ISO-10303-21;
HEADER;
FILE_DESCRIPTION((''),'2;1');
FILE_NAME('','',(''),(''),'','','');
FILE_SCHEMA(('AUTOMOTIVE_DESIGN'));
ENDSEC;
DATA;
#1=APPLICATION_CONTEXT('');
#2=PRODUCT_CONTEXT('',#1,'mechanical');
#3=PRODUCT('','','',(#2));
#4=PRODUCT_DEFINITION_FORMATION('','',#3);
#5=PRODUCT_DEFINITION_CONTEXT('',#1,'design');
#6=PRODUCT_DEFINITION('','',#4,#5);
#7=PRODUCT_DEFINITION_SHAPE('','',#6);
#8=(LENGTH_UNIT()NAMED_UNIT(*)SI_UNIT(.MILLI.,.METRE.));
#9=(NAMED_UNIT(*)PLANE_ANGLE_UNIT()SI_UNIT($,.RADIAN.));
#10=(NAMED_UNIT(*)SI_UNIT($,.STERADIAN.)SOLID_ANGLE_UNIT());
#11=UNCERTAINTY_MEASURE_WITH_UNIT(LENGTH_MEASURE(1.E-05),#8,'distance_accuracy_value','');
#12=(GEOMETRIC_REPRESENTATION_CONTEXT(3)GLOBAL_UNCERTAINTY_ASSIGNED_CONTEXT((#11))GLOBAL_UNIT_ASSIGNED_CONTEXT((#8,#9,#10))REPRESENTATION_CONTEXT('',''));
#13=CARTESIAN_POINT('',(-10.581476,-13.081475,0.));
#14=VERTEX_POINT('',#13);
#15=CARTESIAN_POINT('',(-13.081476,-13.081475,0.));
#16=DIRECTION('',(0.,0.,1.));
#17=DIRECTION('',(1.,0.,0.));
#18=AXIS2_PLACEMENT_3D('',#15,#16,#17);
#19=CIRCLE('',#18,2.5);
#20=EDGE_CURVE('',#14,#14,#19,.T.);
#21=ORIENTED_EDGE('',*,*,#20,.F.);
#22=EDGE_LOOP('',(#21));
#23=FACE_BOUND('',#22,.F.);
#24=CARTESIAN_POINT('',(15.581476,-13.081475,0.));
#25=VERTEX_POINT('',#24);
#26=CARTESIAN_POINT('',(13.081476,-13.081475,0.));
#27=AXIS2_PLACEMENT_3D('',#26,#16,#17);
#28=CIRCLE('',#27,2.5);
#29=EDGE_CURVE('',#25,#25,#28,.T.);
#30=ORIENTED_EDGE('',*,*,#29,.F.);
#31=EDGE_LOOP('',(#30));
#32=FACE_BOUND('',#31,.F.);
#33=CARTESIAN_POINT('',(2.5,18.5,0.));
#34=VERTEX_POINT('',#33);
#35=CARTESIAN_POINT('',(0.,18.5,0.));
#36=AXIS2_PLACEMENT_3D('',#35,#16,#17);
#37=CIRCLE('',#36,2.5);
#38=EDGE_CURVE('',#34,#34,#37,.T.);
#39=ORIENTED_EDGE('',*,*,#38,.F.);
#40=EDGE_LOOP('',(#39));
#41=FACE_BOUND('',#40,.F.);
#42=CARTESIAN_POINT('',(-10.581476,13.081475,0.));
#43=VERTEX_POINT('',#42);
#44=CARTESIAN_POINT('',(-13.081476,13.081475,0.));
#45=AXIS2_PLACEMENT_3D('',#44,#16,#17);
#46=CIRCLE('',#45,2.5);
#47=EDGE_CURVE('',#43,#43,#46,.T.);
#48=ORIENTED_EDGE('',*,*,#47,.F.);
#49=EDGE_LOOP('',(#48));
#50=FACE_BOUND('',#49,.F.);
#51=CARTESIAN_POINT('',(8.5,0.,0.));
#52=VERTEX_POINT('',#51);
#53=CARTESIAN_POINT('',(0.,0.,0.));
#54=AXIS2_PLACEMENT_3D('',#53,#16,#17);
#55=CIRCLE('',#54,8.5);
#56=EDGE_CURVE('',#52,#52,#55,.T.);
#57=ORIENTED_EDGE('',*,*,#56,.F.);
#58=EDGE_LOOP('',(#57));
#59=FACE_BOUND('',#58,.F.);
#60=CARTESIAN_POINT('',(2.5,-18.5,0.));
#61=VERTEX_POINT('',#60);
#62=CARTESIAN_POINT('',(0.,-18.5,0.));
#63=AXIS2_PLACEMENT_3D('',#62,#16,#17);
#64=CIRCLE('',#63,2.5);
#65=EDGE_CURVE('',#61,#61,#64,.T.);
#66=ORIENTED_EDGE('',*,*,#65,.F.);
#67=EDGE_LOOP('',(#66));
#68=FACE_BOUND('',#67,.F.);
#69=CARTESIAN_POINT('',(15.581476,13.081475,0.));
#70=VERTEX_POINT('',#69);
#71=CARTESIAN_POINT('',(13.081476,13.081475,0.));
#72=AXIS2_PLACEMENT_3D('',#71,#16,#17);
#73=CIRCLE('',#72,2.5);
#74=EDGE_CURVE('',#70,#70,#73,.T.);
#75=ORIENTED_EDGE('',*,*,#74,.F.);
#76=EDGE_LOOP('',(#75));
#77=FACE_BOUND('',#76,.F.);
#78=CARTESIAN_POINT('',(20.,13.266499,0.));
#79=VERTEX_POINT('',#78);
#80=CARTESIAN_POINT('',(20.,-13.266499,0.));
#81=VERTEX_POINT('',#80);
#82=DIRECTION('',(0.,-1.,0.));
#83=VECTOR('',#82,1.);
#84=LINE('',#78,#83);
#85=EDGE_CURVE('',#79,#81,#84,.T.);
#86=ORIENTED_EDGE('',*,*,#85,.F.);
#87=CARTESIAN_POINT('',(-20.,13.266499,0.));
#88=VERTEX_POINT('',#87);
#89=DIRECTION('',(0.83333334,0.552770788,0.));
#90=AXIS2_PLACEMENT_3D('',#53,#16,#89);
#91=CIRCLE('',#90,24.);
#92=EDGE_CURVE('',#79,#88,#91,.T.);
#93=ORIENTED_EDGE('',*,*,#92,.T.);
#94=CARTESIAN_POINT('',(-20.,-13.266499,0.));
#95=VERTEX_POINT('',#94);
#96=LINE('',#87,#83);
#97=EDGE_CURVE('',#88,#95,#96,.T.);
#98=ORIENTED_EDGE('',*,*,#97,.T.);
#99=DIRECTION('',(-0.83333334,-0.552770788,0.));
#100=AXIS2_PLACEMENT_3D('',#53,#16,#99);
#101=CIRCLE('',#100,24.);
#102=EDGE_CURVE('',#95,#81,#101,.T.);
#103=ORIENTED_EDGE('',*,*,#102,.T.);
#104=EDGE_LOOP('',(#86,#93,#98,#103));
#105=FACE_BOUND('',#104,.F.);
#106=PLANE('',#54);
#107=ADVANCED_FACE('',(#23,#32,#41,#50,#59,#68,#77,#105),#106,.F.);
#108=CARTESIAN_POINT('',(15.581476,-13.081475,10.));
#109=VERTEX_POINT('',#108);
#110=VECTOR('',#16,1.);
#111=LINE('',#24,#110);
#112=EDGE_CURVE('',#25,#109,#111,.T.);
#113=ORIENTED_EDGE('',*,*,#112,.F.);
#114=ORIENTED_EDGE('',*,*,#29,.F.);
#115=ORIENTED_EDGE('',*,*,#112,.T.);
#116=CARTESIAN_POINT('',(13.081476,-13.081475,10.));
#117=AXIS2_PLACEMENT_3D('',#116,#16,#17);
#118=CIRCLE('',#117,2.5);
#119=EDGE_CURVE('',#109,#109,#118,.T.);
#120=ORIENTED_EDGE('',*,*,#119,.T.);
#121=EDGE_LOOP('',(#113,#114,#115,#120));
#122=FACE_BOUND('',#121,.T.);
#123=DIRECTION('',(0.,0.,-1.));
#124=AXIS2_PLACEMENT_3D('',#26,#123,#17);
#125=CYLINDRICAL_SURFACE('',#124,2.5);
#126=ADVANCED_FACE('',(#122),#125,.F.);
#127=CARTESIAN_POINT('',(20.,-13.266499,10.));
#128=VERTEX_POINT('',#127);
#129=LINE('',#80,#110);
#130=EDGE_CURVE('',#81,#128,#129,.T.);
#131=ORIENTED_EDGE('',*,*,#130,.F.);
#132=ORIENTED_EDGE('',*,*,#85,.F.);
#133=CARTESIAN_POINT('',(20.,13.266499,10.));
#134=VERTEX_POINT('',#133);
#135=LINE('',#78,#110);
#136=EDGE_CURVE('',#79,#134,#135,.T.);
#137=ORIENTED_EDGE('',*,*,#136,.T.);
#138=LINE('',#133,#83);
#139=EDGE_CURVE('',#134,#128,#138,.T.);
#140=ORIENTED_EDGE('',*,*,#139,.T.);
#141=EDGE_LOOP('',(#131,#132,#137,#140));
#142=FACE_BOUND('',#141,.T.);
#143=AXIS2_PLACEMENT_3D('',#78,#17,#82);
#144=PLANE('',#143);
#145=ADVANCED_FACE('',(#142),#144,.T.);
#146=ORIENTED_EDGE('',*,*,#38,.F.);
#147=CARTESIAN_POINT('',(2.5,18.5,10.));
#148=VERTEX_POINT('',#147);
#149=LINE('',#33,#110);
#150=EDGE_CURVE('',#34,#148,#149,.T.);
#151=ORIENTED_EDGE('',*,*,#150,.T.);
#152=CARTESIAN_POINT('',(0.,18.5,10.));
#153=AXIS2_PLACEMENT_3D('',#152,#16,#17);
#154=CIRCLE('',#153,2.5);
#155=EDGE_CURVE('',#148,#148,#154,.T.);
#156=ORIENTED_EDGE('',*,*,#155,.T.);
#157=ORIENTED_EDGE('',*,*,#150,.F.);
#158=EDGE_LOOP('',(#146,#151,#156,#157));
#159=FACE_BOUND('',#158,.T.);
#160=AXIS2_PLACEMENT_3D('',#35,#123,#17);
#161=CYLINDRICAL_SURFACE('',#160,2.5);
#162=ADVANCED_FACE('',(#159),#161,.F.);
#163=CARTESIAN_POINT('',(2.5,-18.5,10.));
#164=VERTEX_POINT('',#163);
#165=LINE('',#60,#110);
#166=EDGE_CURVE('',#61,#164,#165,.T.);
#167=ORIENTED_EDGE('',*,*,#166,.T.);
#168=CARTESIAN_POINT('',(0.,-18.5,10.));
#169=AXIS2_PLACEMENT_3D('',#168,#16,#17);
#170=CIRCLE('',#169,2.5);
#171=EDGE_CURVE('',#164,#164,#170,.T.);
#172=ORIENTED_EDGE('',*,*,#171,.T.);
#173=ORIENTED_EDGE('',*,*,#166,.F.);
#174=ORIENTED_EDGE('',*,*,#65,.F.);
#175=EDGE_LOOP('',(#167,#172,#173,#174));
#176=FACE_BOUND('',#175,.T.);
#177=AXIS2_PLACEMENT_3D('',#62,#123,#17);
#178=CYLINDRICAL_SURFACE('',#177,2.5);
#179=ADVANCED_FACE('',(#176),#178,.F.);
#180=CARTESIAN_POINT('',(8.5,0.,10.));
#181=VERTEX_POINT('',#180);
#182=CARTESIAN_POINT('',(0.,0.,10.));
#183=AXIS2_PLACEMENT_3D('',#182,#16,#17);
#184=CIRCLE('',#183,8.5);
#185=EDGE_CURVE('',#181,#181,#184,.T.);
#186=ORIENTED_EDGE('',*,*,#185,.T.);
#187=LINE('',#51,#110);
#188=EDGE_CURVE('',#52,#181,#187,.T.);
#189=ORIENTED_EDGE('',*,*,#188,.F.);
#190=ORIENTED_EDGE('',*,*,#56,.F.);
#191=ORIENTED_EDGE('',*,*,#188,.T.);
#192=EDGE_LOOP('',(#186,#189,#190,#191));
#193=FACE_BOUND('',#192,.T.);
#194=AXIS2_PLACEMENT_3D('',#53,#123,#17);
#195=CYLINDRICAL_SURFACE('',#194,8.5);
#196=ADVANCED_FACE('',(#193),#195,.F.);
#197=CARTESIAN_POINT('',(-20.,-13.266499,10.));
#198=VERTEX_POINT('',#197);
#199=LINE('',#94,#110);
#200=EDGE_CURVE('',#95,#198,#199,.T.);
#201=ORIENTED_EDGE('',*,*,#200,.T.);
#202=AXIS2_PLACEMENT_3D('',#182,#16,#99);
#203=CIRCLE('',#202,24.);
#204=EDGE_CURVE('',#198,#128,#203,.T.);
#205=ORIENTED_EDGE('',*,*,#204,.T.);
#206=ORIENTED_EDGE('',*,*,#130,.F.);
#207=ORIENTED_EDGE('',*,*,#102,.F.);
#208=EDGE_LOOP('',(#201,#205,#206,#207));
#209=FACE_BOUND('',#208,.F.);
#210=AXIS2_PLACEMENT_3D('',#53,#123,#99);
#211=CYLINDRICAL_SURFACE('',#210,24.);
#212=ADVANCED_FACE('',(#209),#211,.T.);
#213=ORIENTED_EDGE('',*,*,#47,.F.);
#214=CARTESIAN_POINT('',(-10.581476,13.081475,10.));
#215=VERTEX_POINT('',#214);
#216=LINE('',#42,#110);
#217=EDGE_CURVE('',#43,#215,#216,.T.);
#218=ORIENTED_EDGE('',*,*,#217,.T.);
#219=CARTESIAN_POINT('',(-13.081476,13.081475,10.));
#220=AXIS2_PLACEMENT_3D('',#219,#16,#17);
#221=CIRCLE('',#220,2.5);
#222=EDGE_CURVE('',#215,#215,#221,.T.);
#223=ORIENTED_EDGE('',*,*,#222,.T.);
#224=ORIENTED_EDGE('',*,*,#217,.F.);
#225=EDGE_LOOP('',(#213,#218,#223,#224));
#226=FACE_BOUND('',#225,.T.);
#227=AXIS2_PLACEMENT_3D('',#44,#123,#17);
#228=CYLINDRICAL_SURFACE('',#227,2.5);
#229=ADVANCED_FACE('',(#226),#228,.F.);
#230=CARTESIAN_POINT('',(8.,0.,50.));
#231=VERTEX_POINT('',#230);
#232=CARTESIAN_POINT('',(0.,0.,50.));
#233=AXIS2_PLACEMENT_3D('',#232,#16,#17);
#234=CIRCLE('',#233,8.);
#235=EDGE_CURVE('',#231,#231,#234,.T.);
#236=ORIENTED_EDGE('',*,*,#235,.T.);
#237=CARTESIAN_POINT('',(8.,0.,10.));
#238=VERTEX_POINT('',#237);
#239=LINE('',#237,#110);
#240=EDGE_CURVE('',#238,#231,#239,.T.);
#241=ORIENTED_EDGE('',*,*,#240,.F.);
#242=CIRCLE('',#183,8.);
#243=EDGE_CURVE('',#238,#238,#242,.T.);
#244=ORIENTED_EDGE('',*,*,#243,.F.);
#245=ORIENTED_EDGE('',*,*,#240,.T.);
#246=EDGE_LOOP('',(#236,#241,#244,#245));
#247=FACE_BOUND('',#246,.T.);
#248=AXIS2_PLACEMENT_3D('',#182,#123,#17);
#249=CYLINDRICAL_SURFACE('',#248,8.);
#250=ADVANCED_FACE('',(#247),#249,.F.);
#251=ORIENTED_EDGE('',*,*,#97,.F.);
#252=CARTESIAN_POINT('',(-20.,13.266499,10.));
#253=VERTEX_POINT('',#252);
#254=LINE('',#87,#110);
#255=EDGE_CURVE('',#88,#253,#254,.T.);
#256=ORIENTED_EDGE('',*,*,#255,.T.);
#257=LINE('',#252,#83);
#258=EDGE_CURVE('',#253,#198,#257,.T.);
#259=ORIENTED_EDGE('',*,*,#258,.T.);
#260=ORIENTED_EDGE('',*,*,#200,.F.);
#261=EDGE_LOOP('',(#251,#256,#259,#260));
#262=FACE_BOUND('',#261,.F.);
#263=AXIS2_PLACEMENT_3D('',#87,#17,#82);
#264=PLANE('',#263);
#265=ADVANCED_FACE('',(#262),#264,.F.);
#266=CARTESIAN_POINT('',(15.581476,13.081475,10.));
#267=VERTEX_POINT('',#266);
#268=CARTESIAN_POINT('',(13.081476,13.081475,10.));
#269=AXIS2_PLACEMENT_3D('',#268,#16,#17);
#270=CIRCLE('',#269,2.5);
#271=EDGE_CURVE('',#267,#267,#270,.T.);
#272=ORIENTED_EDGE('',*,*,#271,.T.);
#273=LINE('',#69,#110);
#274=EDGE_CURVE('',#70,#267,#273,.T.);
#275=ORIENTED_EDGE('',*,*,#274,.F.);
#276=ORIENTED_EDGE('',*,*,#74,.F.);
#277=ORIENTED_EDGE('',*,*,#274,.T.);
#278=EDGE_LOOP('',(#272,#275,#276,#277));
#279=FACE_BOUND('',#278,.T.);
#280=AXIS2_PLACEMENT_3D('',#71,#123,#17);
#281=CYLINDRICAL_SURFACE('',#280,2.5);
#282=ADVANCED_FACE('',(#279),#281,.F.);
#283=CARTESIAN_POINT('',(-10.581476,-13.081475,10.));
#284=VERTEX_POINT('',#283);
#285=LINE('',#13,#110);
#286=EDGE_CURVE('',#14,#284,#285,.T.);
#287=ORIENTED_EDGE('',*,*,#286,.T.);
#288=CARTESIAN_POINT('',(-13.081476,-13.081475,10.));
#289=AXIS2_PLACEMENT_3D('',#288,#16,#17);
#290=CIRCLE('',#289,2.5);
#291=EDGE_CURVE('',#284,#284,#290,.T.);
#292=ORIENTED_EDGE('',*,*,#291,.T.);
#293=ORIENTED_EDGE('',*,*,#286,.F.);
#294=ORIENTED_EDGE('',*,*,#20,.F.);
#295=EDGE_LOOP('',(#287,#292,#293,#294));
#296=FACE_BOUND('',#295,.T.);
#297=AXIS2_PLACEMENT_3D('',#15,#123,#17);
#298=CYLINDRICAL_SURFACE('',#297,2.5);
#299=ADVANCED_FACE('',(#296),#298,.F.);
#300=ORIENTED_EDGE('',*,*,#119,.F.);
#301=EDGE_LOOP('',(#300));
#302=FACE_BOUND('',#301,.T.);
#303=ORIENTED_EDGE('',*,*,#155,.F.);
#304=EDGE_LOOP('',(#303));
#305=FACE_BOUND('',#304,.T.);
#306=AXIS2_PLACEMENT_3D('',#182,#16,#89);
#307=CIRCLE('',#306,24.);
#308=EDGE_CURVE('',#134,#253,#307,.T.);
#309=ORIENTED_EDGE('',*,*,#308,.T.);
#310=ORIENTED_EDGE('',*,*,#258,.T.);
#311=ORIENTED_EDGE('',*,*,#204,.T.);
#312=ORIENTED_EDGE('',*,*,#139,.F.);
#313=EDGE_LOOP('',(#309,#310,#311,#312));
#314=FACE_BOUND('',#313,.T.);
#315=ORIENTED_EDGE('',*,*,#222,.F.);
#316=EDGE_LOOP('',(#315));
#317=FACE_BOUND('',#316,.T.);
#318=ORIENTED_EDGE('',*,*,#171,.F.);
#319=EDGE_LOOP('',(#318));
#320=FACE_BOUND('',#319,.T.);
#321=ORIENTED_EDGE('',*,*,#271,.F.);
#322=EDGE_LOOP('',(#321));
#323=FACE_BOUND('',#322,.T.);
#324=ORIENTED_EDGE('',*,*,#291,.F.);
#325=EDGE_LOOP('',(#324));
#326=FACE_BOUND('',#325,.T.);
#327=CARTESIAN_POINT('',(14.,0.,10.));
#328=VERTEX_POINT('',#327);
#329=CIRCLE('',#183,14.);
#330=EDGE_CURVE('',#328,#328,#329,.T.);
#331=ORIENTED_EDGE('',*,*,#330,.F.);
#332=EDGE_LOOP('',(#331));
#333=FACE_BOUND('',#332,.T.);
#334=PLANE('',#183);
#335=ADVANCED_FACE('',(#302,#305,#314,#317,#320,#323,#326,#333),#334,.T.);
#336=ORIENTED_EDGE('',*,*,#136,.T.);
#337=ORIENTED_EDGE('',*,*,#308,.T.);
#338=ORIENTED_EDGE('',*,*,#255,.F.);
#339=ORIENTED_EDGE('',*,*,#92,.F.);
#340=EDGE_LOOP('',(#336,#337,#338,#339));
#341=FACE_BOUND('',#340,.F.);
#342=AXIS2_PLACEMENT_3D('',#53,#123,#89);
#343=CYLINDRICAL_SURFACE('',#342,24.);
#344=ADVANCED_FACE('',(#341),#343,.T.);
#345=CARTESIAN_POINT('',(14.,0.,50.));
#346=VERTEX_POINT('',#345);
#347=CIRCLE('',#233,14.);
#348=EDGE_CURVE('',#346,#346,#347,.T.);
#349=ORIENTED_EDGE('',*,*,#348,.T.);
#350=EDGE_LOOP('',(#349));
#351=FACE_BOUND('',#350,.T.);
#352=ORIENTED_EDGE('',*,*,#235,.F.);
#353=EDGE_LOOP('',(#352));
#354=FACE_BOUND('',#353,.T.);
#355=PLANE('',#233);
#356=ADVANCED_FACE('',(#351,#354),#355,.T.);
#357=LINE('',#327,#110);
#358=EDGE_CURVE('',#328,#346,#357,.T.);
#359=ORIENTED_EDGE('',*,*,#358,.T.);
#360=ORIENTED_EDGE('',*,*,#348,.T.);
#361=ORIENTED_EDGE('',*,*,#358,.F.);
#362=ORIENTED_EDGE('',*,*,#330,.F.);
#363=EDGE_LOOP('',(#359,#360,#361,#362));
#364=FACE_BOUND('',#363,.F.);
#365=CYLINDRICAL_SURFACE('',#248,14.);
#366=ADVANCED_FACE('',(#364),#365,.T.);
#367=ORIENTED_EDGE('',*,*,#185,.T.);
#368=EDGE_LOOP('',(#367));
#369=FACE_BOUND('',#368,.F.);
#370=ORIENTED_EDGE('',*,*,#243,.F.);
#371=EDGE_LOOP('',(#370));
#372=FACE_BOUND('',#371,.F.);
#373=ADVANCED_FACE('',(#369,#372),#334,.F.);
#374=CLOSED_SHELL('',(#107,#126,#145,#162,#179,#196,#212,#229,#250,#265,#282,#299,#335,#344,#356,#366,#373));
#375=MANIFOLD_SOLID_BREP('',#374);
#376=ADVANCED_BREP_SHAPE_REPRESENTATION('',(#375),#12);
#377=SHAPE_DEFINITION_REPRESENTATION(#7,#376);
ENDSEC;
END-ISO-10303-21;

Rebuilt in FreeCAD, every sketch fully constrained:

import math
import FreeCAD as App
import Part
import Sketcher
Q = App.Units.Quantity

doc = App.newDocument("Part")
body = doc.addObject("PartDesign::Body", "Body")

sketch1 = body.newObject("Sketcher::SketchObject", "Sketch")
sketch1.AttachmentSupport = (doc.getObject("XY_Plane"), [""])
sketch1.MapMode = "FlatFace"
sketch1.addGeometry(Part.ArcOfCircle(Part.Circle(App.Vector(0, 0, 0), App.Vector(0, 0, 1), 24), math.radians(34), math.radians(146)), False)
sketch1.addGeometry(Part.LineSegment(App.Vector(-20, 13.3, 0), App.Vector(-20, -13.3, 0)), False)
sketch1.addGeometry(Part.ArcOfCircle(Part.Circle(App.Vector(0, 0, 0), App.Vector(0, 0, 1), 24), math.radians(-146), math.radians(-34)), False)
sketch1.addGeometry(Part.LineSegment(App.Vector(20, -13.3, 0), App.Vector(20, 13.3, 0)), False)
sketch1.addGeometry(Part.Circle(App.Vector(-13.1, -13.1, 0), App.Vector(0, 0, 1), 2.5), False)
sketch1.addGeometry(Part.Circle(App.Vector(0, -18.5, 0), App.Vector(0, 0, 1), 2.5), False)
sketch1.addGeometry(Part.Circle(App.Vector(13.1, -13.1, 0), App.Vector(0, 0, 1), 2.5), False)
sketch1.addGeometry(Part.Circle(App.Vector(-13.1, 13.1, 0), App.Vector(0, 0, 1), 2.5), False)
sketch1.addGeometry(Part.Circle(App.Vector(0, 0, 0), App.Vector(0, 0, 1), 8.5), False)
sketch1.addGeometry(Part.Circle(App.Vector(0, 18.5, 0), App.Vector(0, 0, 1), 2.5), False)
sketch1.addGeometry(Part.Circle(App.Vector(13.1, 13.1, 0), App.Vector(0, 0, 1), 2.5), False)
sketch1.addConstraint(Sketcher.Constraint("Coincident", 0, 2, 1, 1))
sketch1.addConstraint(Sketcher.Constraint("Coincident", 1, 2, 2, 1))
sketch1.addConstraint(Sketcher.Constraint("Coincident", 2, 2, 3, 1))
sketch1.addConstraint(Sketcher.Constraint("Coincident", 3, 2, 0, 1))
sketch1.addConstraint(Sketcher.Constraint("Vertical", 1))
sketch1.addConstraint(Sketcher.Constraint("Vertical", 3))
sketch1.addConstraint(Sketcher.Constraint("Coincident", 0, 3, -1, 1))
sketch1.addConstraint(Sketcher.Constraint("Coincident", 2, 3, -1, 1))
sketch1.addConstraint(Sketcher.Constraint("Coincident", 8, 3, -1, 1))
sketch1.addConstraint(Sketcher.Constraint("Equal", 0, 2))
sketch1.addConstraint(Sketcher.Constraint("Equal", 4, 5))
sketch1.addConstraint(Sketcher.Constraint("Equal", 5, 6))
sketch1.addConstraint(Sketcher.Constraint("Equal", 6, 7))
sketch1.addConstraint(Sketcher.Constraint("Equal", 7, 9))
sketch1.addConstraint(Sketcher.Constraint("Equal", 9, 10))
sketch1.addConstraint(Sketcher.Constraint("Symmetric", 6, 3, 7, 3, -1, 1))
sketch1.addConstraint(Sketcher.Constraint("Symmetric", 5, 3, 9, 3, -1, 1))
sketch1.addConstraint(Sketcher.Constraint("Symmetric", 4, 3, 10, 3, -1, 1))
sketch1.addConstraint(Sketcher.Constraint("Symmetric", 4, 3, 6, 3, -2))
sketch1.addConstraint(Sketcher.Constraint("PointOnObject", 5, 3, -2))
sketch1.addConstraint(Sketcher.Constraint("Horizontal", 1, 2, 2, 2))
sketch1.addConstraint(Sketcher.Constraint("Diameter", 4, Q("5 mm")))
sketch1.addConstraint(Sketcher.Constraint("Diameter", 8, Q("17 mm")))
sketch1.addConstraint(Sketcher.Constraint("Radius", 0, Q("24 mm")))
sketch1.addConstraint(Sketcher.Constraint("DistanceX", 0, 2, -1, 1, Q("20 mm")))
sketch1.addConstraint(Sketcher.Constraint("DistanceY", 5, 3, -1, 1, Q("18.5 mm")))
sketch1.addConstraint(Sketcher.Constraint("DistanceY", 4, 3, 7, 3, Q("26.16295 mm")))
sketch1.addConstraint(Sketcher.Constraint("DistanceX", 4, 3, -1, 1, Q("13.081476 mm")))
pad1 = body.newObject("PartDesign::Pad", "Pad")
pad1.Profile = sketch1
pad1.Length = 10

sketch2 = body.newObject("Sketcher::SketchObject", "Sketch001")
sketch2.AttachmentSupport = (doc.getObject("XY_Plane"), [""])
sketch2.MapMode = "FlatFace"
sketch2.AttachmentOffset = App.Placement(App.Vector(0, 0, 10), App.Rotation())
sketch2.addGeometry(Part.Circle(App.Vector(0, 0, 0), App.Vector(0, 0, 1), 14), False)
sketch2.addGeometry(Part.Circle(App.Vector(0, 0, 0), App.Vector(0, 0, 1), 8), False)
sketch2.addConstraint(Sketcher.Constraint("Coincident", 0, 3, -1, 1))
sketch2.addConstraint(Sketcher.Constraint("Coincident", 1, 3, -1, 1))
sketch2.addConstraint(Sketcher.Constraint("Diameter", 0, Q("28 mm")))
sketch2.addConstraint(Sketcher.Constraint("Diameter", 1, Q("16 mm")))
pad2 = body.newObject("PartDesign::Pad", "Pad001")
pad2.Profile = sketch2
pad2.Length = 40

doc.recompute()
